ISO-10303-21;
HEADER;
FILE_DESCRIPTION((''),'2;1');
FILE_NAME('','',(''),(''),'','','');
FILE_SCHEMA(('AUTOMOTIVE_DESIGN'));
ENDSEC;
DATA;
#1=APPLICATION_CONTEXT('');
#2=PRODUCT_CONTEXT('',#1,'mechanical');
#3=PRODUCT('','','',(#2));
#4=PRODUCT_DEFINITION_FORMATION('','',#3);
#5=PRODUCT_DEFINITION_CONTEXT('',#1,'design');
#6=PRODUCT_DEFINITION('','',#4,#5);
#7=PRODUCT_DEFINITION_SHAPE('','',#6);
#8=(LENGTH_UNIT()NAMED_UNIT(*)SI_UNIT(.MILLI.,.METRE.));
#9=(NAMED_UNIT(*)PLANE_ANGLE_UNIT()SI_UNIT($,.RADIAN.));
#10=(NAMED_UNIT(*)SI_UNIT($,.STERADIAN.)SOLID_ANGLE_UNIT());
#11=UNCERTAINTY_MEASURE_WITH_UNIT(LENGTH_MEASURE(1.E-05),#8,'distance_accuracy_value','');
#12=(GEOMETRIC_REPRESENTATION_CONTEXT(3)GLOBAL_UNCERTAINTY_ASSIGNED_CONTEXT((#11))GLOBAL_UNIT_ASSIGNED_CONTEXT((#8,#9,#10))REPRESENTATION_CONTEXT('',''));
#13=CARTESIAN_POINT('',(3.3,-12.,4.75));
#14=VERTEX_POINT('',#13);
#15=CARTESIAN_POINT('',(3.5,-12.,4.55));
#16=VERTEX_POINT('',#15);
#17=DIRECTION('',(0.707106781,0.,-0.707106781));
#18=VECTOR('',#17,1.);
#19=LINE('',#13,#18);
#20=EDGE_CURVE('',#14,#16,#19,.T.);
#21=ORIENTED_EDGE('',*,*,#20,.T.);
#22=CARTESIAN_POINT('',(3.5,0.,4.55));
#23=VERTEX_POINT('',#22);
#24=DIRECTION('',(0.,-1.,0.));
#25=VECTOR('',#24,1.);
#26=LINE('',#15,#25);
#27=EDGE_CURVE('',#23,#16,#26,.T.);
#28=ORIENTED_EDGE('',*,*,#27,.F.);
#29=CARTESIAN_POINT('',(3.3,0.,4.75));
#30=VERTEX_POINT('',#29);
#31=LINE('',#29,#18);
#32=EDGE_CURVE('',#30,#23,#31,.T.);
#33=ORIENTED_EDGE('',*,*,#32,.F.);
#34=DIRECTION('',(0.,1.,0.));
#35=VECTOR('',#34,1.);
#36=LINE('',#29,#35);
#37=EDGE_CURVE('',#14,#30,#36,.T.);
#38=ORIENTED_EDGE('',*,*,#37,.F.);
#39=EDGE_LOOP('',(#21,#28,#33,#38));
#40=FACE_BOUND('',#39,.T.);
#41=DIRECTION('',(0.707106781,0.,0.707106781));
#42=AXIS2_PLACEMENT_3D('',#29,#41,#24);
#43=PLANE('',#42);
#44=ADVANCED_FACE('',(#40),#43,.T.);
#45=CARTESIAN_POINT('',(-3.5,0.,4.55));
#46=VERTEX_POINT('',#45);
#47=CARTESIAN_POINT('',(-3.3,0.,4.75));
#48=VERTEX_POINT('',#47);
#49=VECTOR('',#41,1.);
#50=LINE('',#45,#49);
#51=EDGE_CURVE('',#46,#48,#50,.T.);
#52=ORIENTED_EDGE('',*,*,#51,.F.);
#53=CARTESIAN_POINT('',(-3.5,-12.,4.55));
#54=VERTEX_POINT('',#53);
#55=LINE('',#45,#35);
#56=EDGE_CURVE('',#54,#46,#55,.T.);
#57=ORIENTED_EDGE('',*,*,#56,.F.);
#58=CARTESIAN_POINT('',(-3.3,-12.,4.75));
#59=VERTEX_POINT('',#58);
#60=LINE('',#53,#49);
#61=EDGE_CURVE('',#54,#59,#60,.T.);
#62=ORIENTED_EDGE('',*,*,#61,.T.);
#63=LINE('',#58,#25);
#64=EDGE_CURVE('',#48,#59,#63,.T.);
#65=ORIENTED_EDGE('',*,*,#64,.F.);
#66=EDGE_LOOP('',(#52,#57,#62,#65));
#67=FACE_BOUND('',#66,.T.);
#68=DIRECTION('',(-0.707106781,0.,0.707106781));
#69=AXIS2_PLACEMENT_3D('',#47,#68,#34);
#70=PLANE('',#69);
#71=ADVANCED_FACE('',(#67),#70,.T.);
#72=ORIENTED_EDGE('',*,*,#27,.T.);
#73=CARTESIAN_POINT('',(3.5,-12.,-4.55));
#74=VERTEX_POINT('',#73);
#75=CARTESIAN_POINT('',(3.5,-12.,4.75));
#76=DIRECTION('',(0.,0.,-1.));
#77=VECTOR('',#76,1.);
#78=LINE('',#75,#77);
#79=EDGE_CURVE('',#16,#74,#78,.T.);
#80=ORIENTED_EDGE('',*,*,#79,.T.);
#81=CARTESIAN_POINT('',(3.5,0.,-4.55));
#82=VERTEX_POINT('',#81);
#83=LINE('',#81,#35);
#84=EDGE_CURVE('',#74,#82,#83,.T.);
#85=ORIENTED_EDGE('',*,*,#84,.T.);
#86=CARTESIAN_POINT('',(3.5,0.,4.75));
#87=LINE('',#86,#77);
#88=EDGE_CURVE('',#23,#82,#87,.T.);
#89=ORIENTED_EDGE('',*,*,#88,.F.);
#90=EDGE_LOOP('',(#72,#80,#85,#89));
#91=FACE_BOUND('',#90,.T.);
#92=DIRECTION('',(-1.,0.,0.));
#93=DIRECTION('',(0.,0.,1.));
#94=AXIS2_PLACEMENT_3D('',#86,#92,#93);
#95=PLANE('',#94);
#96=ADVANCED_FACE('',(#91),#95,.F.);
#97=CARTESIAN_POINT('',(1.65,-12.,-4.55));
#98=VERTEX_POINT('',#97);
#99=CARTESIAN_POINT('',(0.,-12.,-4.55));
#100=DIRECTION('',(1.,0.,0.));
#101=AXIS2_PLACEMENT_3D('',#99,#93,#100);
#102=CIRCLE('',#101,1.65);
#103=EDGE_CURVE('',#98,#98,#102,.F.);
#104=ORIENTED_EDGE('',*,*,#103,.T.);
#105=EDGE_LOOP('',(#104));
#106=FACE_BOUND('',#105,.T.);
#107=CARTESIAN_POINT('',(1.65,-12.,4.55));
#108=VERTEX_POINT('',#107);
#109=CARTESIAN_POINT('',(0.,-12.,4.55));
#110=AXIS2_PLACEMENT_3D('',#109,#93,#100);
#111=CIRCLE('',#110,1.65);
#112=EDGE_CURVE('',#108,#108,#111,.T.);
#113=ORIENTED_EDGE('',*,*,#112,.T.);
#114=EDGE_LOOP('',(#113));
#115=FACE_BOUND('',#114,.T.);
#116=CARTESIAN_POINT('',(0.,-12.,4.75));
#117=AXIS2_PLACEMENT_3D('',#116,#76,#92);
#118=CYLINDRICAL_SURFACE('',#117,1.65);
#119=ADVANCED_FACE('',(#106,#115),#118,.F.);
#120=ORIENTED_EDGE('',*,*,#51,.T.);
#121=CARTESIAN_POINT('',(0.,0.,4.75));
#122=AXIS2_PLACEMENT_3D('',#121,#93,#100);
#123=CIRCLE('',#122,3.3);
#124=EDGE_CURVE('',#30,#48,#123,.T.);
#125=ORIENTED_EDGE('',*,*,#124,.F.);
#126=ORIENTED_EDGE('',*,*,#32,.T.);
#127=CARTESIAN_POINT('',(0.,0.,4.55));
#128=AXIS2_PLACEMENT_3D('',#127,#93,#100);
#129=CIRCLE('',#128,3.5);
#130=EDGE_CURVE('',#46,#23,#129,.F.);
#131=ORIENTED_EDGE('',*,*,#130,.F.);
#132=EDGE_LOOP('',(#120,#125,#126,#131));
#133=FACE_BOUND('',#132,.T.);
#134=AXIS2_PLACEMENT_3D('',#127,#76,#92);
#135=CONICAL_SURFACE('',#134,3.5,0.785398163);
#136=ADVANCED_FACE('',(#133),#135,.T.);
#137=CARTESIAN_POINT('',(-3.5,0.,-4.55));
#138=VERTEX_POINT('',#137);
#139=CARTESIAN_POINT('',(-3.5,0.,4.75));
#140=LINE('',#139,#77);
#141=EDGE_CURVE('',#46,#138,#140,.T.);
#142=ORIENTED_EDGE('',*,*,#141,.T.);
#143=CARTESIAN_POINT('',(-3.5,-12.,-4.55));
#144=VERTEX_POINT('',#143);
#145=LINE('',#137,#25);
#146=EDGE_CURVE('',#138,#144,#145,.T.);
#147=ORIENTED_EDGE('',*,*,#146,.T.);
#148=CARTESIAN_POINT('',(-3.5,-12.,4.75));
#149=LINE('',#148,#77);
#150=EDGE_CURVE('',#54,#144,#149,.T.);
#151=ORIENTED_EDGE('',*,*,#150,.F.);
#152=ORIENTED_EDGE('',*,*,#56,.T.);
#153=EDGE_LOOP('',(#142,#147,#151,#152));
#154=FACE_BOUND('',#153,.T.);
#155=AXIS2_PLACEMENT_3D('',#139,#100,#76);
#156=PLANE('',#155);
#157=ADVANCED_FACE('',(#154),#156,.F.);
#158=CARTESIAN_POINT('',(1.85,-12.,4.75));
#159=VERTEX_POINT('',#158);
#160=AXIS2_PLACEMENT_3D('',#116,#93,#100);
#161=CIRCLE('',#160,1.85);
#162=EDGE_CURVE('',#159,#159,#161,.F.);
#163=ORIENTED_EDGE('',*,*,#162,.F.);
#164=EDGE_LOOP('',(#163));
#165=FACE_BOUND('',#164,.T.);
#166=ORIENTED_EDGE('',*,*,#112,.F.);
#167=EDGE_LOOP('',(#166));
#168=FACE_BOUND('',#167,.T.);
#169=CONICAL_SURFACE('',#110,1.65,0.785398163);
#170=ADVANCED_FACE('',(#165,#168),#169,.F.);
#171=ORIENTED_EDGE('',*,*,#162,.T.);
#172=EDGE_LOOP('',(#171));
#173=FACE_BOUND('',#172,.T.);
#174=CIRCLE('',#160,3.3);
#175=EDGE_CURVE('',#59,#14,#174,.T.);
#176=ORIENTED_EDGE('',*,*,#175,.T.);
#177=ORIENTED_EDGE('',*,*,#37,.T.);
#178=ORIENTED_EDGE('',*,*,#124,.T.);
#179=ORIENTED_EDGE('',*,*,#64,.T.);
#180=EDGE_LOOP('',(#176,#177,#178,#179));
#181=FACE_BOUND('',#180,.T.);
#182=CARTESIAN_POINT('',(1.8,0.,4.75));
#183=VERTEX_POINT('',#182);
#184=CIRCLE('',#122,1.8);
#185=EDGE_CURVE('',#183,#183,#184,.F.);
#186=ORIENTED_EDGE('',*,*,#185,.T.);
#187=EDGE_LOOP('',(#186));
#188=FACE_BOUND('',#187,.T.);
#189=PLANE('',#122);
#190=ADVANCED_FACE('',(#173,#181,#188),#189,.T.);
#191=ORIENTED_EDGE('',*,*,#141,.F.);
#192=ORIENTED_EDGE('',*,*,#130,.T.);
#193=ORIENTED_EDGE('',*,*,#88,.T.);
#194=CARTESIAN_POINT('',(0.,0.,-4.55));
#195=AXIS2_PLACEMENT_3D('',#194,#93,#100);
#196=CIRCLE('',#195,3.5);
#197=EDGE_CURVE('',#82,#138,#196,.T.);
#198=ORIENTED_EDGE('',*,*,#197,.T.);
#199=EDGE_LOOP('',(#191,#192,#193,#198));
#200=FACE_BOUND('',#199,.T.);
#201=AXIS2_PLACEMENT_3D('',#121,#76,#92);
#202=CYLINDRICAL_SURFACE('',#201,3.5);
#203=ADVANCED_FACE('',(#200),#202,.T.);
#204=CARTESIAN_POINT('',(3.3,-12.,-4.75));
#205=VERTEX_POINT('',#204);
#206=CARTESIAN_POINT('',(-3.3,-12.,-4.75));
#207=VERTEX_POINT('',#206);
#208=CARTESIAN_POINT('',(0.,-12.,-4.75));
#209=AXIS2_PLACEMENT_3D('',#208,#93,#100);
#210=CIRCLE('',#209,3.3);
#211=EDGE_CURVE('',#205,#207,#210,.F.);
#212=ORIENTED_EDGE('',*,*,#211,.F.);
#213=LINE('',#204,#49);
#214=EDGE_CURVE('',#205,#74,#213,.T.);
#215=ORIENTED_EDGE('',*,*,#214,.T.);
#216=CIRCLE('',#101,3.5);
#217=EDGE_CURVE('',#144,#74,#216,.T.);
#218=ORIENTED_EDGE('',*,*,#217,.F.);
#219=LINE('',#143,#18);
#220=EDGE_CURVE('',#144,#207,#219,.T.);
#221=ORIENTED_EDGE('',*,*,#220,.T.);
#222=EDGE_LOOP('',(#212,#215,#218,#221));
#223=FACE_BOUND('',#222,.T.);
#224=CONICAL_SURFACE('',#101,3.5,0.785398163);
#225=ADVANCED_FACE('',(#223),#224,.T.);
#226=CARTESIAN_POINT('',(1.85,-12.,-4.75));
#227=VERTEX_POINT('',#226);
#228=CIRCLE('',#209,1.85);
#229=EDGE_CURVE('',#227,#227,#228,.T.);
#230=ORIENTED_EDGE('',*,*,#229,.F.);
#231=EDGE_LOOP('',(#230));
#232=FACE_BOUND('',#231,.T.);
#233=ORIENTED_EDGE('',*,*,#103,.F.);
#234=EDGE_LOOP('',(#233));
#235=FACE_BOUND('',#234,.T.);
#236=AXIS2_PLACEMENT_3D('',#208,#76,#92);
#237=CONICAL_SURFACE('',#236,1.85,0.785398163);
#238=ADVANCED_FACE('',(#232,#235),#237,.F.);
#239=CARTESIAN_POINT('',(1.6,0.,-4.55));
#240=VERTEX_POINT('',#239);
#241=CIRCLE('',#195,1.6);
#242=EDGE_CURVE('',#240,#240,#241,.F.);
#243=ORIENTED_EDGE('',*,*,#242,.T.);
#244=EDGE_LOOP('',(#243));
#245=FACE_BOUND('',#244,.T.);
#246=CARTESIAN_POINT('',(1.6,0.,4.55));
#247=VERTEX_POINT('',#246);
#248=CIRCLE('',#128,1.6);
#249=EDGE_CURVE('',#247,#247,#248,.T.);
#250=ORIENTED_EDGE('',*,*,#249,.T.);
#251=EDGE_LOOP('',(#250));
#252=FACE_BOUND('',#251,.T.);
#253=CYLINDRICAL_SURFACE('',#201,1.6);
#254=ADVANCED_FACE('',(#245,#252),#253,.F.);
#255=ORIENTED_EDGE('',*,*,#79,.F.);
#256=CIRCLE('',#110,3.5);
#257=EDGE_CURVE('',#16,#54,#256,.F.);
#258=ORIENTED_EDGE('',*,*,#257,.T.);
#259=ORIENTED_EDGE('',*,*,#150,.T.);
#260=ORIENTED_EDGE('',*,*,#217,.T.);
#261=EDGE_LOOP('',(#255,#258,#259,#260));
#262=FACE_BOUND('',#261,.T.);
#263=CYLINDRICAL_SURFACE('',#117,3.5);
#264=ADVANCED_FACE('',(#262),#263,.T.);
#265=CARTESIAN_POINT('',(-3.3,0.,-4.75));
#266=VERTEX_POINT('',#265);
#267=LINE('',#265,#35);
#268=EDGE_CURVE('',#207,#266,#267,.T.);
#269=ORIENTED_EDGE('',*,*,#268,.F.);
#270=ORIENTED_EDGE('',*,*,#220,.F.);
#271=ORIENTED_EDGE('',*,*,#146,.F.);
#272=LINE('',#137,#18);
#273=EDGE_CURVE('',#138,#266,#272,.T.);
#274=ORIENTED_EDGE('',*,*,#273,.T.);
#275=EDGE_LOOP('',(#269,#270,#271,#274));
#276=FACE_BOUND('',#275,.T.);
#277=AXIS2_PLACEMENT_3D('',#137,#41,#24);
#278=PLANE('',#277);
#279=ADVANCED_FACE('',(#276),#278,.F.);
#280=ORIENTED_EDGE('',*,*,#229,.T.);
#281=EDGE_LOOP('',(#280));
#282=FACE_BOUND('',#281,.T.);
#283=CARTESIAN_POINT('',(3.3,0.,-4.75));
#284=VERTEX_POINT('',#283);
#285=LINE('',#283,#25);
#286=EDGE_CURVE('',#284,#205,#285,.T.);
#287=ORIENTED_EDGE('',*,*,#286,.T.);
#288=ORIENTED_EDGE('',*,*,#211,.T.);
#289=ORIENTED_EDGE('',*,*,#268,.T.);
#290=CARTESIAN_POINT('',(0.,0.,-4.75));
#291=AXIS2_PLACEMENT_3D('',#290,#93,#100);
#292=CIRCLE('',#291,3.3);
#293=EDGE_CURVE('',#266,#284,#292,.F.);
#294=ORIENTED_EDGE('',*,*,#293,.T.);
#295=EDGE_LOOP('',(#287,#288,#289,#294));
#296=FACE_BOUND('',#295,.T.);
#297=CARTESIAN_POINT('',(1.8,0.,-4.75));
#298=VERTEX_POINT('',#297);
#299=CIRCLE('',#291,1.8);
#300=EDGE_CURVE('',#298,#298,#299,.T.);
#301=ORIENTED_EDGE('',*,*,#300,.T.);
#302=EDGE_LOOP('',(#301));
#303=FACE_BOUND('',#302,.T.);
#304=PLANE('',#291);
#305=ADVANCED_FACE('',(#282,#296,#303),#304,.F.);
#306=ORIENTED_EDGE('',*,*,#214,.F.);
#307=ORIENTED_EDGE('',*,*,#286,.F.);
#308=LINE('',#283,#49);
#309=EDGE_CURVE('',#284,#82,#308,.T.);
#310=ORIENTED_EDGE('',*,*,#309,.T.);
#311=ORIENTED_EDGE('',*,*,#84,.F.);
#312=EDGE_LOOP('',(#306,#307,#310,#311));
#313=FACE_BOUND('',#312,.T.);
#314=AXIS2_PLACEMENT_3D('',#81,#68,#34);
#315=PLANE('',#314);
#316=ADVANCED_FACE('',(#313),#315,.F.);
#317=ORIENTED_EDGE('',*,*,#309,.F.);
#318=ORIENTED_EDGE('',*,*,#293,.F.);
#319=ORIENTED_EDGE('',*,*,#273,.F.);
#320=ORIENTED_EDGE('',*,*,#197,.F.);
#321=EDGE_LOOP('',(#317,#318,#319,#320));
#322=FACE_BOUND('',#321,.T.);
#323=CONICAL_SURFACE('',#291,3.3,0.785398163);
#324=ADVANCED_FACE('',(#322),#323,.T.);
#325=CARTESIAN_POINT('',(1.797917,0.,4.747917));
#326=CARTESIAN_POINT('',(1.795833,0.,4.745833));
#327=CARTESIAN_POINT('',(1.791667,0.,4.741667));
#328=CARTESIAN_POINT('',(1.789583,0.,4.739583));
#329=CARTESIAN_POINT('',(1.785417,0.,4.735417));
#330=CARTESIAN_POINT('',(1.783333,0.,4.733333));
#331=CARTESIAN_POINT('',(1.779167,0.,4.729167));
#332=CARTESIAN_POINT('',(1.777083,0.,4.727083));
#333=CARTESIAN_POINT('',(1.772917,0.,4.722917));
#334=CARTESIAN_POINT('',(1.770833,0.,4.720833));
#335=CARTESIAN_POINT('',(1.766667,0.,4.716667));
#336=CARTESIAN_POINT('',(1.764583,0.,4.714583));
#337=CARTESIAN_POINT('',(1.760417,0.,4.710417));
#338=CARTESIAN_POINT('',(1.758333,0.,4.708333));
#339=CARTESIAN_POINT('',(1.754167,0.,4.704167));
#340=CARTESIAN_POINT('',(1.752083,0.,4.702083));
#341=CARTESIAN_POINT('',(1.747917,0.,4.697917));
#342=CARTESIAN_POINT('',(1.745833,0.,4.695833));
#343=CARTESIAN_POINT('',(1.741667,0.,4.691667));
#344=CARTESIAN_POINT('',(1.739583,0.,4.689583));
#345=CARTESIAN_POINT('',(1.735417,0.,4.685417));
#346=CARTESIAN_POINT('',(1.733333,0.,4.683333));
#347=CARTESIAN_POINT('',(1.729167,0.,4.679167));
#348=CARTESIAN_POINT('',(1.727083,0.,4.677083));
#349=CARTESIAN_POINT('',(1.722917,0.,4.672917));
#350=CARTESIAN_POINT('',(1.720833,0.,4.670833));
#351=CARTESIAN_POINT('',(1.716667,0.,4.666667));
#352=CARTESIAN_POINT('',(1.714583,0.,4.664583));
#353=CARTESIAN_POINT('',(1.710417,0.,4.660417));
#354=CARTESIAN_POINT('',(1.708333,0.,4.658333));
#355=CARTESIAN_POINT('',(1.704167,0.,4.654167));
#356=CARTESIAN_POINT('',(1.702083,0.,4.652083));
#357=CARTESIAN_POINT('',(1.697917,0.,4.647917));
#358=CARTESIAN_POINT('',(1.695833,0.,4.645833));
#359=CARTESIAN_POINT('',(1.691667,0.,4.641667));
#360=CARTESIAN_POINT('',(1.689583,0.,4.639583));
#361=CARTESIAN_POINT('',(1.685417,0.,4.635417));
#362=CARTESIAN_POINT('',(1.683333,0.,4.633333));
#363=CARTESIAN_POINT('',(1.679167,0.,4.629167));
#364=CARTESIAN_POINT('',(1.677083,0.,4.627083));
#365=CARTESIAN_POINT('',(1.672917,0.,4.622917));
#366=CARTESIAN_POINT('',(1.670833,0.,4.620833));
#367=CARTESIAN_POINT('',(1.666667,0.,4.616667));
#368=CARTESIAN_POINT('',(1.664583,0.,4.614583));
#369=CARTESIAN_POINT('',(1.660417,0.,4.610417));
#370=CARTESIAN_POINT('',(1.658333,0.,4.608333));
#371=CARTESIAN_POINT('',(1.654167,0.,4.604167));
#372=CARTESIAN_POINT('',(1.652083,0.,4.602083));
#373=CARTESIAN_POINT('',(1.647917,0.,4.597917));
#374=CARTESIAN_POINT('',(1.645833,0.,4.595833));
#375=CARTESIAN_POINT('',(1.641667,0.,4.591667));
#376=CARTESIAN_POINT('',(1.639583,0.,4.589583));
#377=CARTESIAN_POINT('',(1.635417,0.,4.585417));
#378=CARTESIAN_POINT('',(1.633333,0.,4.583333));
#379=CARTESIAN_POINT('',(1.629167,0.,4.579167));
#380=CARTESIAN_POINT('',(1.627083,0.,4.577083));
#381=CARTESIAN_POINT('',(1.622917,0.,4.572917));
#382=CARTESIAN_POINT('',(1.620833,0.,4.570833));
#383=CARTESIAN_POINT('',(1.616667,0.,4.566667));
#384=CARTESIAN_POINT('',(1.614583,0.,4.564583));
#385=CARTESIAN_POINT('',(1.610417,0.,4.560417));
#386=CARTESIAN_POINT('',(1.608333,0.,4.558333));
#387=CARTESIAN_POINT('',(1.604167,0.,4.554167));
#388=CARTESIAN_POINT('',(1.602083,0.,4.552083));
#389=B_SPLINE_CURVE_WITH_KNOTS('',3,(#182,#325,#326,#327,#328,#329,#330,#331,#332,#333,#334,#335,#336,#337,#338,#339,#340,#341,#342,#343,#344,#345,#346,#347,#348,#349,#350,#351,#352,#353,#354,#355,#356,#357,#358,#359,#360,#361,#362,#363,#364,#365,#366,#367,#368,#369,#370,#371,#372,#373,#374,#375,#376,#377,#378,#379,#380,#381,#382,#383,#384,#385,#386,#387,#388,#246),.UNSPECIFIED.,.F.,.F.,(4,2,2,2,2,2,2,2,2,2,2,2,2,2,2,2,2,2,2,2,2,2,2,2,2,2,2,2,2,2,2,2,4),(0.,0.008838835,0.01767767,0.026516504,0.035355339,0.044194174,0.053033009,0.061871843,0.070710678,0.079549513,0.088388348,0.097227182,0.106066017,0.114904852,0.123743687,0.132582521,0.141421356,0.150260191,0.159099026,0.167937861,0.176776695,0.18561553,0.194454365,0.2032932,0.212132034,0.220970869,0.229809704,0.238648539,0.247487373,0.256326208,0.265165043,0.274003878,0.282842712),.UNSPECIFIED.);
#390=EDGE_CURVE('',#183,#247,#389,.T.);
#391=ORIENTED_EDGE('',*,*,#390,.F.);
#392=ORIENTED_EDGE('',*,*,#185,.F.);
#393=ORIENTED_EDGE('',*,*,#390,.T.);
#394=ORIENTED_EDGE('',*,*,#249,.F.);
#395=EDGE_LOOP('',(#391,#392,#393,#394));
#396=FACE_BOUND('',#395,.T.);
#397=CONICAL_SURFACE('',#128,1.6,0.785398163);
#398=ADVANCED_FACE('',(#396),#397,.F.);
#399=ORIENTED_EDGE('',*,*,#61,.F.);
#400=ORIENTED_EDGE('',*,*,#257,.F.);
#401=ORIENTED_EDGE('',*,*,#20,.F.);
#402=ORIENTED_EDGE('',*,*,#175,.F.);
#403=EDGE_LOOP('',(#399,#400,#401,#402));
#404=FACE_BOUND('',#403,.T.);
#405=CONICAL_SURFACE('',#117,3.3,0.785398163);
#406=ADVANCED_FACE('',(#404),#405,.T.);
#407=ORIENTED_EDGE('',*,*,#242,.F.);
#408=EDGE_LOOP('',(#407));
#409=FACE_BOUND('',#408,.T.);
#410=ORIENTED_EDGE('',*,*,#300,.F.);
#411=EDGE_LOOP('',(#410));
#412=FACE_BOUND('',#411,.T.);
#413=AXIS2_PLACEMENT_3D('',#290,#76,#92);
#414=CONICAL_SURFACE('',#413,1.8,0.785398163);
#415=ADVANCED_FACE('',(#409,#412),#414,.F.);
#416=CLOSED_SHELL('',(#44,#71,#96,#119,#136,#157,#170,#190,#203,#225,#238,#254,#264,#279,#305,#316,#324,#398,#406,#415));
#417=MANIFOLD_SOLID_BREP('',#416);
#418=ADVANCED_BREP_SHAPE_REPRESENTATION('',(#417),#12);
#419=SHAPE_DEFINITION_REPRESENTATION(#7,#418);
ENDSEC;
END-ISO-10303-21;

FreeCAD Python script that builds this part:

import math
import FreeCAD as App
import Part
import Sketcher

V = App.Vector


def edges_at(feature, points):
    """Names of the edges that pass closest to the given points."""
    edges = feature.Shape.Edges
    near = lambda p: min(range(len(edges)), key=lambda i: edges[i].distToShape(Part.Vertex(*p))[0])
    return sorted({f"Edge{near(p) + 1}" for p in points})

doc = App.newDocument("Part")
params = doc.addObject("Spreadsheet::Sheet", "Params")
for row, (alias, value) in enumerate([
    ("sketch1_diameter", "3.3 mm"),
    ("sketch1_diameter2", "3.2 mm"),
    ("sketch1_radius", "3.5 mm"),
    ("sketch1_height", "12 mm"),
    ("pad1_length", "9.5 mm"),
    ("chamfer_size", "0.2 mm"),
], start=1):
    params.set(f"A{row}", alias)
    params.set(f"B{row}", "=" + value)
    params.setAlias(f"B{row}", alias)

body = doc.addObject("PartDesign::Body", "Body")

sketch1 = doc.addObject("Sketcher::SketchObject", "Sketch")
body.addObject(sketch1)
sketch1.AttachmentSupport = (doc.XY_Plane, [""])
sketch1.MapMode = "FlatFace"
sketch1.addGeometry([
    Part.LineSegment(V(-3.5, 0, 0), V(-3.5, -12, 0)),
    Part.ArcOfCircle(Part.Circle(V(0, -12, 0), V(0, 0, 1), 3.5), math.radians(180), math.radians(360)),
    Part.LineSegment(V(3.5, -12, 0), V(3.5, 0, 0)),
    Part.ArcOfCircle(Part.Circle(V(0, 0, 0), V(0, 0, 1), 3.5), math.radians(0), math.radians(180)),
    Part.Circle(V(0, -12, 0), V(0, 0, 1), 1.65),
    Part.Circle(V(0, 0, 0), V(0, 0, 1), 1.6),
], False)
sketch1.addConstraint([
    Sketcher.Constraint("Tangent", 0, 2, 1, 1),
    Sketcher.Constraint("Tangent", 1, 2, 2, 1),
    Sketcher.Constraint("Tangent", 2, 2, 3, 1),
    Sketcher.Constraint("Tangent", 3, 2, 0, 1),
    Sketcher.Constraint("Vertical", 0),
    Sketcher.Constraint("Vertical", 2),
    Sketcher.Constraint("Coincident", 3, 3, -1, 1),
    Sketcher.Constraint("Coincident", 5, 3, -1, 1),
    Sketcher.Constraint("Coincident", 4, 3, 1, 3),
    Sketcher.Constraint("Diameter", 4, 3.3),
    Sketcher.Constraint("Diameter", 5, 3.2),
    Sketcher.Constraint("Radius", 1, 3.5),
    Sketcher.Constraint("DistanceY", 0, 2, 0, 1, 12.0),
])
sketch1.setExpression("Constraints[9]", "Params.sketch1_diameter")
sketch1.setExpression("Constraints[10]", "Params.sketch1_diameter2")
sketch1.setExpression("Constraints[11]", "Params.sketch1_radius")
sketch1.setExpression("Constraints[12]", "Params.sketch1_height")
pad1 = doc.addObject("PartDesign::Pad", "Pad")
body.addObject(pad1)
pad1.Profile = sketch1
pad1.setExpression("Length", "Params.pad1_length")
pad1.Midplane = True
doc.recompute()

chamfer = doc.addObject("PartDesign::Chamfer", "Chamfer")
body.addObject(chamfer)
chamfer.Base = (pad1, edges_at(pad1, [
    (-1.65, -12, -4.75),
    (-1.6, 0, -4.75),
    (-1.65, -12, 4.75),
    (-3.5, -6, 4.75),
    (0, -15.5, 4.75),
    (3.5, -6, 4.75),
    (0, 3.5, 4.75),
    (-1.6, 0, 4.75),
    (0, 3.5, -4.75),
    (3.5, -6, -4.75),
    (0, -15.5, -4.75),
    (-3.5, -6, -4.75),
]))
chamfer.setExpression("Size", "Params.chamfer_size")

doc.recompute()
